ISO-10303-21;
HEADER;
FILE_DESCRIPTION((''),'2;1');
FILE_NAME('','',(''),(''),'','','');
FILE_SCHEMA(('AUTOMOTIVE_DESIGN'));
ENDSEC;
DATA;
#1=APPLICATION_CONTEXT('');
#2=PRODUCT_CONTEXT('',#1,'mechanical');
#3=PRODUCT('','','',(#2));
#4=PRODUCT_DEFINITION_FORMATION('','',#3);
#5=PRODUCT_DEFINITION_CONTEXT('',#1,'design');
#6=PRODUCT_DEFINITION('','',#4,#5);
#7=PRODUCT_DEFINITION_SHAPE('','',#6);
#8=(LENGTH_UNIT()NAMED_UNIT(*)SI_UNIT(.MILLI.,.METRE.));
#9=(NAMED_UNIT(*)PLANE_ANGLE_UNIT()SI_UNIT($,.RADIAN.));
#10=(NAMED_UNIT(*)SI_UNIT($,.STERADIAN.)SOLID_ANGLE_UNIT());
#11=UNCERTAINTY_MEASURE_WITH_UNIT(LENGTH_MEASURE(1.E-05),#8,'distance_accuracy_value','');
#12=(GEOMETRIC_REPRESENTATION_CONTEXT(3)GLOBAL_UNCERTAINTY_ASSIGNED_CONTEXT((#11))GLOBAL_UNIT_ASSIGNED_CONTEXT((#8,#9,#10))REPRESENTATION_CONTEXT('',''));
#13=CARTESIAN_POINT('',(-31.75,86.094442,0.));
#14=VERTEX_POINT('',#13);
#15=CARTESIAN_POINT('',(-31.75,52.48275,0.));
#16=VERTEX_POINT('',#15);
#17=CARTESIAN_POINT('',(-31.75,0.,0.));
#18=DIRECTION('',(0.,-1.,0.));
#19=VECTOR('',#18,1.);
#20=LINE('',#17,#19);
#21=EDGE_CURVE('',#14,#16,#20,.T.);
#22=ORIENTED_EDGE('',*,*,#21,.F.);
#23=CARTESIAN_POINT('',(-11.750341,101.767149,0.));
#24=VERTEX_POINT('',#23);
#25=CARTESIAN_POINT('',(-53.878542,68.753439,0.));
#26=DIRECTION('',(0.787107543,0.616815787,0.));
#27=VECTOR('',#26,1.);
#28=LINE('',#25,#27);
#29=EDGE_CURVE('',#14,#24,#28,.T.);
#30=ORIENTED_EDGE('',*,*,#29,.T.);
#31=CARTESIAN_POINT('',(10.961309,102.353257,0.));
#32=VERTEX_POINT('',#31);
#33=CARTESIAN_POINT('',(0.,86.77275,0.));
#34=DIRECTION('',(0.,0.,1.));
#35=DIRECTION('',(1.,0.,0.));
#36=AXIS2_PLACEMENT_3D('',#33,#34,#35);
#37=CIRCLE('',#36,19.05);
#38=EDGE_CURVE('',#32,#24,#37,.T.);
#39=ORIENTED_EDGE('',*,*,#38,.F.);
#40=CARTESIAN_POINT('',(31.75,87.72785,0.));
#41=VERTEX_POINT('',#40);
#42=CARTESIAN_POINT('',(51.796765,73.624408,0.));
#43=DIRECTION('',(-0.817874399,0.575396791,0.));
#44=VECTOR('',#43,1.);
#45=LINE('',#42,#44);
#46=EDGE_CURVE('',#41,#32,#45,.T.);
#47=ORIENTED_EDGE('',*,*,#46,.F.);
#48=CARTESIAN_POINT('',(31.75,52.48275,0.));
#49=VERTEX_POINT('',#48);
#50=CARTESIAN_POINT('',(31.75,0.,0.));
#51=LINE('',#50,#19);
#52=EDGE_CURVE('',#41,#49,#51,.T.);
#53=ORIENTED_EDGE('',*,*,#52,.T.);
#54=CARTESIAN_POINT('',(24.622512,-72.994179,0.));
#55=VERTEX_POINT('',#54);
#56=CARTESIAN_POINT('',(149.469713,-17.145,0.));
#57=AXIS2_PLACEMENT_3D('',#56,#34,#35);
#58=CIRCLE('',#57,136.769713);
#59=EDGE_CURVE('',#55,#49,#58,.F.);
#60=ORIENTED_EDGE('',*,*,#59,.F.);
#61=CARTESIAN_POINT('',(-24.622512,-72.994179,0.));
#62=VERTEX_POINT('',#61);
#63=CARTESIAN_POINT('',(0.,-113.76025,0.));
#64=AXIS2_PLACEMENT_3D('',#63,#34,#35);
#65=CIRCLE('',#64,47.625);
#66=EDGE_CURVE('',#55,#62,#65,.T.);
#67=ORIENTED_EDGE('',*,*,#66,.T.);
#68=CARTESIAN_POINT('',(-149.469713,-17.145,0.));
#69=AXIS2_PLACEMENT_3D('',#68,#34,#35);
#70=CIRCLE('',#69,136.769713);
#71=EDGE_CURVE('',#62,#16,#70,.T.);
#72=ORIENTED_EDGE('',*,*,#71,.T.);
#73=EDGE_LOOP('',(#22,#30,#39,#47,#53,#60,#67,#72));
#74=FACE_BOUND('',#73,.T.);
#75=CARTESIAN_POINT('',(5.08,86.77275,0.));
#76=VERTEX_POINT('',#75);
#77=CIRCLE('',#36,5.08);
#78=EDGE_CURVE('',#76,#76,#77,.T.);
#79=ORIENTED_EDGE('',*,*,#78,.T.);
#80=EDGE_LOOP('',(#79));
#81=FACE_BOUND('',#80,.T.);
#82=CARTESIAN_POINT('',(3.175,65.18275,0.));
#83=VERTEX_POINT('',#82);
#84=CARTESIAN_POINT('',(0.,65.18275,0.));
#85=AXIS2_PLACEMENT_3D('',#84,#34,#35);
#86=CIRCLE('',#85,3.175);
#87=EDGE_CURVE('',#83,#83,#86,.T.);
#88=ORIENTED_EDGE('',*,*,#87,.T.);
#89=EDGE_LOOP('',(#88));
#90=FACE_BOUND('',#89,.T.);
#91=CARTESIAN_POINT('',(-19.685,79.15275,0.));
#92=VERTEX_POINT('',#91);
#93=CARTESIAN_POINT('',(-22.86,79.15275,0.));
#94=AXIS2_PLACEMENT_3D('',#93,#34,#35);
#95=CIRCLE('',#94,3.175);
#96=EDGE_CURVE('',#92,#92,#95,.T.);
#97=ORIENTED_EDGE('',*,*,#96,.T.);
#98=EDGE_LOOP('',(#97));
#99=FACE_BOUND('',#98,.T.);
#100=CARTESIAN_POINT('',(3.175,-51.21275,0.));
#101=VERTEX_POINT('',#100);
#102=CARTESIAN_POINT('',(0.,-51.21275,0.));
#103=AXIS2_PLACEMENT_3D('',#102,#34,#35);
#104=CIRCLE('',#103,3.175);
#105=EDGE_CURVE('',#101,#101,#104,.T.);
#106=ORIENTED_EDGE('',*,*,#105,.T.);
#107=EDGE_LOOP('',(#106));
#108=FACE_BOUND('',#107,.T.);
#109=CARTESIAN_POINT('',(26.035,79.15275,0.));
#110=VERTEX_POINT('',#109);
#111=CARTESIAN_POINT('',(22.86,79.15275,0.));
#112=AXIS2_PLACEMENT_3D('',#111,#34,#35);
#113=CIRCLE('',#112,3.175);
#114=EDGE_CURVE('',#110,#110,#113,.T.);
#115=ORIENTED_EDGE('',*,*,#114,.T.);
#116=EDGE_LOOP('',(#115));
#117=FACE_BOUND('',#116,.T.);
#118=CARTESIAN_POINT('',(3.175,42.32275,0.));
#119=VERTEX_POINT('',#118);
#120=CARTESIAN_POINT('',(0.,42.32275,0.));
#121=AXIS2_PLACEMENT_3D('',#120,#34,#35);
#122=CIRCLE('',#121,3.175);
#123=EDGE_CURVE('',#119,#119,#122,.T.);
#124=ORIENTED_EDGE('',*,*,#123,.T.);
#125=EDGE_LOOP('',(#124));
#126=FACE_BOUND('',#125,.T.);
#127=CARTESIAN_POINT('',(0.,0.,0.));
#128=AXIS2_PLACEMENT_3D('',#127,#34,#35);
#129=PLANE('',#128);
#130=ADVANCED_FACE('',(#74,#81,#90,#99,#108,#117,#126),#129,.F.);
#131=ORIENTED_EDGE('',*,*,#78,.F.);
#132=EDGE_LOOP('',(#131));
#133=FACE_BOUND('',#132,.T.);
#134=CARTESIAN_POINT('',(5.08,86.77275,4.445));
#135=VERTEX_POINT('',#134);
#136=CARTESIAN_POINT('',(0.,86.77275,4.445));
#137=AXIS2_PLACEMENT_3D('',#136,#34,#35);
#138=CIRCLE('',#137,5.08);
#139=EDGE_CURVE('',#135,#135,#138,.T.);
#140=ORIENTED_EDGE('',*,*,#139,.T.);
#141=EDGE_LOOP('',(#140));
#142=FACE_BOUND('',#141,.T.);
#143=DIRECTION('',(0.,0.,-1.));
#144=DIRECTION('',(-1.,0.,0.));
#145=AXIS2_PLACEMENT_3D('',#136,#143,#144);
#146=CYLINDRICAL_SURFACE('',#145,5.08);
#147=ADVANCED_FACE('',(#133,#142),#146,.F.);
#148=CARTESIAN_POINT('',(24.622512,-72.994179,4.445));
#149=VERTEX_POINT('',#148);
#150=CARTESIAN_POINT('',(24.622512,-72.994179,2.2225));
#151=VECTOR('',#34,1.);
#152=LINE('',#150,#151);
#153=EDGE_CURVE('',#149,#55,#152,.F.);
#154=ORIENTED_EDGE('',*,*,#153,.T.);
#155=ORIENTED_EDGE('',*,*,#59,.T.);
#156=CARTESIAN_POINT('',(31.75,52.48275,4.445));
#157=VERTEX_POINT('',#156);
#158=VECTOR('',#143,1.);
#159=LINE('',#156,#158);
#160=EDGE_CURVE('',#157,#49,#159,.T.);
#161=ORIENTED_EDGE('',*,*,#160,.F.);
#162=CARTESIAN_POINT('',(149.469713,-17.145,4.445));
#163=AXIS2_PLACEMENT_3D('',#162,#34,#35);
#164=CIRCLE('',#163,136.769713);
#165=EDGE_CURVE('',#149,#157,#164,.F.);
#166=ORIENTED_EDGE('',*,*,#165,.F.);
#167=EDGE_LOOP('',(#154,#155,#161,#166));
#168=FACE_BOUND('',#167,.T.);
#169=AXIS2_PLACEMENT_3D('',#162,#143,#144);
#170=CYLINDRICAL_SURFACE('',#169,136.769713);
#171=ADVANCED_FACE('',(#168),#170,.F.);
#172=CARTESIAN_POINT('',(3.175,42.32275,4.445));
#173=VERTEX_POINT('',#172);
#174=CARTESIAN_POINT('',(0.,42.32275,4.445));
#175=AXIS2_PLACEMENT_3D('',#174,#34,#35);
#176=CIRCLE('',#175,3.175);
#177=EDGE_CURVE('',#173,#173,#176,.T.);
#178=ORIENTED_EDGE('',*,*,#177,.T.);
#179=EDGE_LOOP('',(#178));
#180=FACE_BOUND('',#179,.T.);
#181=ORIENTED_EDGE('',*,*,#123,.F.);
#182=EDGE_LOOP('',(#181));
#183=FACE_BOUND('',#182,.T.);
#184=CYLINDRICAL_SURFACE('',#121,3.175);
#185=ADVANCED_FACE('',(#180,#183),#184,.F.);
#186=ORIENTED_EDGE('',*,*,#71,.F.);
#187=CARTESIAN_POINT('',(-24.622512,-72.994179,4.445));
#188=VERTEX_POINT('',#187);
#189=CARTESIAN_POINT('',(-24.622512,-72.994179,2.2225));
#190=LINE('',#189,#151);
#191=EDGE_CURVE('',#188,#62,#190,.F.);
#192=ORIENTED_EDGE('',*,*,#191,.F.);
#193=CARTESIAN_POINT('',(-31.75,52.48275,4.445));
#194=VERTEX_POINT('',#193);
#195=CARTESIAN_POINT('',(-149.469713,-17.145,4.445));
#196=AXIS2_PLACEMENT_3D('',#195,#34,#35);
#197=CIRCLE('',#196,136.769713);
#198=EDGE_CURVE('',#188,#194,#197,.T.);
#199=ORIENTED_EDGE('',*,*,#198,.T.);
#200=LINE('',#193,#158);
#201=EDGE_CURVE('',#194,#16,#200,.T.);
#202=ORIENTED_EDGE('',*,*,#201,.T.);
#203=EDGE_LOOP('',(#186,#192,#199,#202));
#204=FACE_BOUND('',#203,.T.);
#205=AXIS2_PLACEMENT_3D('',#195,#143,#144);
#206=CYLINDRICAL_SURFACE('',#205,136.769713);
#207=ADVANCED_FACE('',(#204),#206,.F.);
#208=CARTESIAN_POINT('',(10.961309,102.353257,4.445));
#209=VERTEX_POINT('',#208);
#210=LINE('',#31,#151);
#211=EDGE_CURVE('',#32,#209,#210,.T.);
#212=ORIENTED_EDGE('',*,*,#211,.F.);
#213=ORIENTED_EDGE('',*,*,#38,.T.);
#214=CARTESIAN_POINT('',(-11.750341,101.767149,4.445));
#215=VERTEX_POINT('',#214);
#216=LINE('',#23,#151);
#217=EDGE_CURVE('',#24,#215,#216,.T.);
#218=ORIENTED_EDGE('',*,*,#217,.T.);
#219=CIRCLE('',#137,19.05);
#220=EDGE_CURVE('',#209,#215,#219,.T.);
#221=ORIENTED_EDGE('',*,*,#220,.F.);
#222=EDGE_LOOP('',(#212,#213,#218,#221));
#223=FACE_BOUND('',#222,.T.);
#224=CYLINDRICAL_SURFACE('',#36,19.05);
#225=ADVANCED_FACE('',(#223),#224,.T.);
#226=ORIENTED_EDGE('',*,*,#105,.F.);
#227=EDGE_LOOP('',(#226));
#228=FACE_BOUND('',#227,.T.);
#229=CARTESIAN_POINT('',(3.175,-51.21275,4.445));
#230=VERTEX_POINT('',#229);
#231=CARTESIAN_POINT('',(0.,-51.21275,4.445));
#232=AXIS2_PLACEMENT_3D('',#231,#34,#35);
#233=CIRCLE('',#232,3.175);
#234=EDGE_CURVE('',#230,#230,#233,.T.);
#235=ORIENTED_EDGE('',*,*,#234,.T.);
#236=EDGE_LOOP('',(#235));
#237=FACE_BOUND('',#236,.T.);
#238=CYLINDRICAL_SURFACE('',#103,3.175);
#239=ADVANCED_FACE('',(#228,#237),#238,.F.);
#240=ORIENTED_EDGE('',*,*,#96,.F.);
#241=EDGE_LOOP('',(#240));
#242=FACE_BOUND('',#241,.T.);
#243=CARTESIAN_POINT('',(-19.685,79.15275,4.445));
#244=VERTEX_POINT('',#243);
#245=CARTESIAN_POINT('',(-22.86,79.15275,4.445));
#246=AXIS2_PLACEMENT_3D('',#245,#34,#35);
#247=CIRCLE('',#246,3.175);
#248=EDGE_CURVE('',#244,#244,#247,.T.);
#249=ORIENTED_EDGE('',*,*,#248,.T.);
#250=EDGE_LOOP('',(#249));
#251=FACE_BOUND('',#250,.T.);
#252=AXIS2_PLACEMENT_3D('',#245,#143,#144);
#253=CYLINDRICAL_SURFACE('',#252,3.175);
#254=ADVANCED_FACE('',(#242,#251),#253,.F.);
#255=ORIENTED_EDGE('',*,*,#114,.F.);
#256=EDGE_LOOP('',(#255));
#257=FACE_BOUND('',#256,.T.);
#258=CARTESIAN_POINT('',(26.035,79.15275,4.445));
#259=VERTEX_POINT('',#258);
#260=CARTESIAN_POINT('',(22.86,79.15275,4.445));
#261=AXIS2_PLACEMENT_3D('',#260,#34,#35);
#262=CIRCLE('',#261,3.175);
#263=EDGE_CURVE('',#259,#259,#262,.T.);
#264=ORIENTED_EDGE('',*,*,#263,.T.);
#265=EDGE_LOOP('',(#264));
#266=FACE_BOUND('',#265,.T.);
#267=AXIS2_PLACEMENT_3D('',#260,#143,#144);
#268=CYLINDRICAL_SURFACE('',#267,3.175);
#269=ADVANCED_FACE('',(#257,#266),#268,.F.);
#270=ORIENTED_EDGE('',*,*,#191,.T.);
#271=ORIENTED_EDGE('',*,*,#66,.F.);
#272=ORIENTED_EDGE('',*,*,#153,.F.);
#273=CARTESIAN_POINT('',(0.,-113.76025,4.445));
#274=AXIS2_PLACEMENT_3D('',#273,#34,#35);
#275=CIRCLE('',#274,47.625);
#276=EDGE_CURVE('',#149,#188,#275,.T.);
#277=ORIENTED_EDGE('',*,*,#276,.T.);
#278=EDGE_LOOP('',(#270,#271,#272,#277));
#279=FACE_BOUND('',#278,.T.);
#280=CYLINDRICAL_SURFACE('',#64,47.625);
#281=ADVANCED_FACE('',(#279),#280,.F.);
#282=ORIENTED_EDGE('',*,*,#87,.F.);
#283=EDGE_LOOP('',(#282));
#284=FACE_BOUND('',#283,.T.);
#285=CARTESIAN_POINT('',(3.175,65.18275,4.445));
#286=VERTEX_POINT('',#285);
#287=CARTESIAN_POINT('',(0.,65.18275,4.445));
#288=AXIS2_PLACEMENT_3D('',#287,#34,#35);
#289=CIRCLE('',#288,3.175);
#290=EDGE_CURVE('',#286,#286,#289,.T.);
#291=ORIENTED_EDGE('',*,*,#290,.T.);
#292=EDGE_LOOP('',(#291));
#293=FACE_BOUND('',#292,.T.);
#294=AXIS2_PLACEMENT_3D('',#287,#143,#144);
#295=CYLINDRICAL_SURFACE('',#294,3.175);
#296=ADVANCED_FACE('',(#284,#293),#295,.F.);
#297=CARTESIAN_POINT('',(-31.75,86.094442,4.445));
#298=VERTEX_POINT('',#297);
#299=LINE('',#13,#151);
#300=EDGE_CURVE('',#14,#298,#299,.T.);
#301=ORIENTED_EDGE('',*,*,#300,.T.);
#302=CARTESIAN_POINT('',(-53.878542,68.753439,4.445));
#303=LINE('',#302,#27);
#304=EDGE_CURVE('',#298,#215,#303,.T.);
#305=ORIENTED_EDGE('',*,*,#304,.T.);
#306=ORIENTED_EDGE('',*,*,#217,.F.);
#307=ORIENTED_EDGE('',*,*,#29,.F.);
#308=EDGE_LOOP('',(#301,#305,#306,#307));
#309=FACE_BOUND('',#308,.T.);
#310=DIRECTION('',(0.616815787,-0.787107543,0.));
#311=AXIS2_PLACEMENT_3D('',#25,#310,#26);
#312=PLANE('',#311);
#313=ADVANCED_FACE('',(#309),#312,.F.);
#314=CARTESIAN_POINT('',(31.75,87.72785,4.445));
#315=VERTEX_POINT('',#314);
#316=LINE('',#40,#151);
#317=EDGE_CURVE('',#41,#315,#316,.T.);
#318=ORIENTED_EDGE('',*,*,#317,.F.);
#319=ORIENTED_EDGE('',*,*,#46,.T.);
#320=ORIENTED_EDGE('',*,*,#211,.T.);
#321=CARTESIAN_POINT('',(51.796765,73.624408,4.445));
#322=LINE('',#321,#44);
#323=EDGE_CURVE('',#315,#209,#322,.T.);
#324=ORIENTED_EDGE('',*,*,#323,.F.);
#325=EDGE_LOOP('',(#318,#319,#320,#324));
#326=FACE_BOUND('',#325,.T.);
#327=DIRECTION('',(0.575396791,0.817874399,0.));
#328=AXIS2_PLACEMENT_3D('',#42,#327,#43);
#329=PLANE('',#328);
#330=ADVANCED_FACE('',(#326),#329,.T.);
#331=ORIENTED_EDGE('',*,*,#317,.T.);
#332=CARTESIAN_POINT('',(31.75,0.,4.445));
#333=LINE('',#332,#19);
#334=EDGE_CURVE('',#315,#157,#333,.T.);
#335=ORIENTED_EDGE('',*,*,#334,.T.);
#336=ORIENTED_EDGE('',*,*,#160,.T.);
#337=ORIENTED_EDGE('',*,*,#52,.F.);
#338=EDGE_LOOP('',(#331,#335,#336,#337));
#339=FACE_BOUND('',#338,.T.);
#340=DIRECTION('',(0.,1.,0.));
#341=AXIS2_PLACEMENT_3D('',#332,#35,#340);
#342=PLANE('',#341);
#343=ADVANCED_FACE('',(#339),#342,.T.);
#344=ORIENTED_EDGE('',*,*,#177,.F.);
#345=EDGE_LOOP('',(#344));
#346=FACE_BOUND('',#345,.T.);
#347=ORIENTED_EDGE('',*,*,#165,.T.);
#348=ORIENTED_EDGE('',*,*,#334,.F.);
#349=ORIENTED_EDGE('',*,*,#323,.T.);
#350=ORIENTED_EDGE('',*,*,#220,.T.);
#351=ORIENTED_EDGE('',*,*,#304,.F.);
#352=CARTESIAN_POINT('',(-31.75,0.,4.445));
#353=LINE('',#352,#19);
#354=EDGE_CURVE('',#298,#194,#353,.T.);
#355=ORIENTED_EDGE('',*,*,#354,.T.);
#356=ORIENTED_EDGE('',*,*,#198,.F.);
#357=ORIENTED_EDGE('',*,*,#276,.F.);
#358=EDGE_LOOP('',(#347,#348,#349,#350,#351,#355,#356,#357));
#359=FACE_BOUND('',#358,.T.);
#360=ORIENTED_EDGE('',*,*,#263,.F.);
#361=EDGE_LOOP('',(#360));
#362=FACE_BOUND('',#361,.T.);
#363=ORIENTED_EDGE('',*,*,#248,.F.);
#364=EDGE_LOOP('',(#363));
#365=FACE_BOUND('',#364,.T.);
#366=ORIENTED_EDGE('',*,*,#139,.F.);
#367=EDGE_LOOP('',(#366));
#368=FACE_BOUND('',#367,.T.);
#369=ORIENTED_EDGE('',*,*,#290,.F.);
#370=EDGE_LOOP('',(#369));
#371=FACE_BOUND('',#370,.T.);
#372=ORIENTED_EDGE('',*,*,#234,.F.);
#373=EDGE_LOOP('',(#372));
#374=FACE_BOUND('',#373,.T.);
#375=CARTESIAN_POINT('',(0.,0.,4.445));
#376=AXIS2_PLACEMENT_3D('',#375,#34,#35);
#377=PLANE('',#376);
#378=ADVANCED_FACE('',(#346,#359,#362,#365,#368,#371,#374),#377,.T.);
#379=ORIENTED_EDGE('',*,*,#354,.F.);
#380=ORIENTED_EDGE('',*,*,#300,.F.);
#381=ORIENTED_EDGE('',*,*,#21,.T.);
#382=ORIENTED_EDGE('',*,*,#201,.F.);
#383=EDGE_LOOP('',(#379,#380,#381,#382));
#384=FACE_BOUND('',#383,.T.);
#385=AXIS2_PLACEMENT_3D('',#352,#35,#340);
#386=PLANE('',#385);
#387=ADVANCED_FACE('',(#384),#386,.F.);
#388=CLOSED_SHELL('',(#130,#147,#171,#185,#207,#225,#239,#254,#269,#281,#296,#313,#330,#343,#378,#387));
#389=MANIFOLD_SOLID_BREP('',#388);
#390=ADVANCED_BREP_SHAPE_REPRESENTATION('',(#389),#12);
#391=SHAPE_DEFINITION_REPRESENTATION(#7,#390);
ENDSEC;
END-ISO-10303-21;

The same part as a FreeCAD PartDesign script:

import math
import FreeCAD as App
import Part
import Sketcher

V = App.Vector
Q = App.Units.Quantity

doc = App.newDocument("Part")
body = doc.addObject("PartDesign::Body", "Body")

# Sketch on XY plane
sketch1 = doc.addObject("Sketcher::SketchObject", "Sketch")
body.addObject(sketch1)
sketch1.AttachmentSupport = (doc.XY_Plane, [""])
sketch1.MapMode = "FlatFace"
sketch1.addGeometry([
    Part.LineSegment(V(31.8, 112.2, 0), V(-31.8, 112.2, 0)),  # 0
    Part.LineSegment(V(-31.8, 112.2, 0), V(-31.8, 52.5, 0)),  # 1
    Part.ArcOfCircle(Part.Circle(V(-149.5, -17.1, 0), V(0, 0, 1), 136.8), math.radians(-31), math.radians(31)),  # 2
    Part.LineSegment(V(-31.8, -86.8, 0), V(-31.8, -112.2, 0)),  # 3
    Part.ArcOfCircle(Part.Circle(V(0, -112.2, 0), V(0, 0, 1), 31.8), math.radians(180), math.radians(360)),  # 4
    Part.LineSegment(V(31.8, -112.2, 0), V(31.8, -86.8, 0)),  # 5
    Part.ArcOfCircle(Part.Circle(V(149.5, -17.1, 0), V(0, 0, 1), 136.8), math.radians(149), math.radians(211)),  # 6
    Part.LineSegment(V(31.8, 52.5, 0), V(31.8, 112.2, 0)),  # 7
    Part.Circle(V(0, -112.2, 0), V(0, 0, 1), 6.3),  # 8
    Part.Circle(V(-22.9, 79.2, 0), V(0, 0, 1), 3.2),  # 9
    Part.Circle(V(0, 65.2, 0), V(0, 0, 1), 3.2),  # 10
    Part.Circle(V(0, 86.8, 0), V(0, 0, 1), 5.1),  # 11
    Part.Circle(V(22.9, 79.2, 0), V(0, 0, 1), 3.2),  # 12
], False)
sketch1.addConstraint([
    Sketcher.Constraint("Coincident", 0, 2, 1, 1),
    Sketcher.Constraint("Coincident", 1, 2, 2, 2),
    Sketcher.Constraint("Coincident", 2, 1, 3, 1),
    Sketcher.Constraint("Tangent", 3, 2, 4, 1),
    Sketcher.Constraint("Tangent", 4, 2, 5, 1),
    Sketcher.Constraint("Coincident", 5, 2, 6, 2),
    Sketcher.Constraint("Coincident", 6, 1, 7, 1),
    Sketcher.Constraint("Coincident", 7, 2, 0, 1),
    Sketcher.Constraint("Horizontal", 0),
    Sketcher.Constraint("Vertical", 1),
    Sketcher.Constraint("Vertical", 3),
    Sketcher.Constraint("Vertical", 5),
    Sketcher.Constraint("Vertical", 7),
    Sketcher.Constraint("Coincident", 8, 3, 4, 3),
    Sketcher.Constraint("Equal", 2, 6),
    Sketcher.Constraint("Equal", 9, 10),
    Sketcher.Constraint("Equal", 10, 12),
    Sketcher.Constraint("Symmetric", 0, 2, 4, 2, -1, 1),
    Sketcher.Constraint("Symmetric", 2, 3, 6, 3, -2),
    Sketcher.Constraint("Symmetric", 9, 3, 12, 3, -2),
    Sketcher.Constraint("PointOnObject", 4, 3, -2),
    Sketcher.Constraint("PointOnObject", 10, 3, -2),
    Sketcher.Constraint("PointOnObject", 11, 3, -2),
    Sketcher.Constraint("Horizontal", 1, 2, 6, 1),
    Sketcher.Constraint("Diameter", 8, Q("0.5 in")),
    Sketcher.Constraint("Diameter", 11, Q("0.4 in")),
    Sketcher.Constraint("Diameter", 9, Q("0.25 in")),
    Sketcher.Constraint("DistanceY", 3, 2, 3, 1, Q("1 in")),
    Sketcher.Constraint("Radius", 4, Q("1.25 in")),
    Sketcher.Constraint("DistanceY", 11, 3, 0, 2, Q("1 in")),
    Sketcher.Constraint("DistanceY", 1, 2, 1, 1, Q("2.35 in")),
    Sketcher.Constraint("DistanceX", 9, 3, -1, 1, Q("0.9 in")),
    Sketcher.Constraint("DistanceY", 9, 3, 11, 3, Q("0.3 in")),
    Sketcher.Constraint("DistanceY", 1, 2, 10, 3, Q("0.5 in")),
    Sketcher.Constraint("Radius", 2, 136.769713),
    Sketcher.Constraint("DistanceY", 4, 3, 9, 3, Q("7.5325 in")),
])
pad1 = doc.addObject("PartDesign::Pad", "Pad")
body.addObject(pad1)
pad1.Profile = sketch1
pad1.Length = Q("0.175 in")

# Sketch on XY plane
sketch2 = doc.addObject("Sketcher::SketchObject", "Sketch001")
body.addObject(sketch2)
sketch2.AttachmentSupport = (doc.XY_Plane, [""])
sketch2.MapMode = "FlatFace"
sketch2.AttachmentOffset = App.Placement(V(0, 0, 0.175 * 25.4), App.Rotation())
sketch2.addGeometry([
    Part.Circle(V(0, 42.3, 0), V(0, 0, 1), 3.2),
    Part.Circle(V(0, -51.2, 0), V(0, 0, 1), 3.2),
], False)
sketch2.addConstraint([
    Sketcher.Constraint("Equal", 0, 1),
    Sketcher.Constraint("PointOnObject", 0, 3, -2),
    Sketcher.Constraint("PointOnObject", 1, 3, -2),
    Sketcher.Constraint("Diameter", 0, Q("0.25 in")),
    Sketcher.Constraint("DistanceY", 1, 3, 0, 3, Q("3.6825 in")),
    Sketcher.Constraint("DistanceY", -1, 1, 0, 3, 42.32275),
])
pocket1 = doc.addObject("PartDesign::Pocket", "Pocket")
body.addObject(pocket1)
pocket1.Profile = sketch2
pocket1.Type = "ThroughAll"

# Sketch on XY plane
sketch3 = doc.addObject("Sketcher::SketchObject", "Sketch002")
body.addObject(sketch3)
sketch3.AttachmentSupport = (doc.XY_Plane, [""])
sketch3.MapMode = "FlatFace"
sketch3.AttachmentOffset = App.Placement(V(0, 0, 0.175 * 25.4), App.Rotation())
sketch3.addGeometry(Part.Circle(V(0, -114, 0), V(0, 0, 1), 48), False)
sketch3.addConstraint([
    Sketcher.Constraint("PointOnObject", 0, 3, -2),
    Sketcher.Constraint("Diameter", 0, Q("3.75 in")),
    Sketcher.Constraint("DistanceY", 0, 3, -1, 1, 113.76025),
])
pocket2 = doc.addObject("PartDesign::Pocket", "Pocket001")
body.addObject(pocket2)
pocket2.Profile = sketch3
pocket2.Type = "ThroughAll"

# Sketch on XY plane
sketch4 = doc.addObject("Sketcher::SketchObject", "Sketch003")
body.addObject(sketch4)
sketch4.AttachmentSupport = (doc.XY_Plane, [""])
sketch4.MapMode = "FlatFace"
sketch4.AttachmentOffset = App.Placement(V(0, 0, 0.175 * 25.4), App.Rotation())
sketch4.addGeometry([
    Part.LineSegment(V(-32, 112, 0), V(-32, 86, 0)),  # 0
    Part.LineSegment(V(-32, 86, 0), V(-12, 102, 0)),  # 1
    Part.ArcOfCircle(Part.Circle(V(0, 87, 0), V(0, 0, 1), 19), math.radians(55), math.radians(128)),  # 2
    Part.LineSegment(V(11, 102, 0), V(32, 88, 0)),  # 3
    Part.LineSegment(V(32, 88, 0), V(32, 112, 0)),  # 4
    Part.LineSegment(V(32, 112, 0), V(-32, 112, 0)),  # 5
], False)
sketch4.addConstraint([
    Sketcher.Constraint("Coincident", 0, 2, 1, 1),
    Sketcher.Constraint("Tangent", 1, 2, 2, 2),
    Sketcher.Constraint("Tangent", 2, 1, 3, 1),
    Sketcher.Constraint("Coincident", 3, 2, 4, 1),
    Sketcher.Constraint("Coincident", 4, 2, 5, 1),
    Sketcher.Constraint("Coincident", 5, 2, 0, 1),
    Sketcher.Constraint("Vertical", 0),
    Sketcher.Constraint("Vertical", 4),
    Sketcher.Constraint("Horizontal", 5),
    Sketcher.Constraint("PointOnObject", 2, 3, -2),
    Sketcher.Constraint("Radius", 2, Q("0.75 in")),
    Sketcher.Constraint("DistanceX", 5, 2, 5, 1, Q("2.5 in")),
    Sketcher.Constraint("DistanceY", 2, 3, 4, 2, Q("1 in")),
    Sketcher.Constraint("DistanceX", 0, 2, -1, 1, Q("1.25 in")),
    Sketcher.Constraint("DistanceY", 4, 1, 4, 2, 24.4449),
    Sketcher.Constraint("DistanceY", 2, 3, 1, 2, 14.994399),
    Sketcher.Constraint("DistanceY", -1, 1, 2, 3, 86.77275),
])
pocket3 = doc.addObject("PartDesign::Pocket", "Pocket002")
body.addObject(pocket3)
pocket3.Profile = sketch4
pocket3.Type = "ThroughAll"

doc.recompute()
